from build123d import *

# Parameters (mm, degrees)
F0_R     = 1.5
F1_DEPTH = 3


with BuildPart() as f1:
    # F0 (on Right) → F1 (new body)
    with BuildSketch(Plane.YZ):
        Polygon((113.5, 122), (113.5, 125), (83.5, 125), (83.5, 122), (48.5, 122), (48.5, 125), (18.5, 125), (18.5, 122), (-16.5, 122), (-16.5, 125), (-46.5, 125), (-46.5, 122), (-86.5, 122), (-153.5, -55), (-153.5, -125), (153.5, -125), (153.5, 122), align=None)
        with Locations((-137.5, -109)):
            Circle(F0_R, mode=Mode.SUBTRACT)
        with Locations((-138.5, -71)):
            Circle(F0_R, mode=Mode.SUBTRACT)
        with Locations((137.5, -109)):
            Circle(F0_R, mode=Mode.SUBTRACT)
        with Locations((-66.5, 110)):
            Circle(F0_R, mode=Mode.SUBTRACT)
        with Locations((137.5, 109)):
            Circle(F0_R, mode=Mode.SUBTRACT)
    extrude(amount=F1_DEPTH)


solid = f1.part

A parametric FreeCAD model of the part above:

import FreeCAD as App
import Part
import Sketcher

doc = App.newDocument("Part")
body = doc.addObject("PartDesign::Body", "Body")

# Sketch on YZ plane
sketch1 = body.newObject("Sketcher::SketchObject", "Sketch")
sketch1.AttachmentSupport = (doc.getObject("YZ_Plane"), [""])
sketch1.MapMode = "FlatFace"
sketch1.addGeometry(Part.LineSegment(App.Vector(113.5, 122, 0), App.Vector(113.5, 125, 0)), False)
sketch1.addGeometry(Part.LineSegment(App.Vector(113.5, 125, 0), App.Vector(83.5, 125, 0)), False)
sketch1.addGeometry(Part.LineSegment(App.Vector(83.5, 125, 0), App.Vector(83.5, 122, 0)), False)
sketch1.addGeometry(Part.LineSegment(App.Vector(83.5, 122, 0), App.Vector(48.5, 122, 0)), False)
sketch1.addGeometry(Part.LineSegment(App.Vector(48.5, 122, 0), App.Vector(48.5, 125, 0)), False)
sketch1.addGeometry(Part.LineSegment(App.Vector(48.5, 125, 0), App.Vector(18.5, 125, 0)), False)
sketch1.addGeometry(Part.LineSegment(App.Vector(18.5, 125, 0), App.Vector(18.5, 122, 0)), False)
sketch1.addGeometry(Part.LineSegment(App.Vector(18.5, 122, 0), App.Vector(-16.5, 122, 0)), False)
sketch1.addGeometry(Part.LineSegment(App.Vector(-16.5, 122, 0), App.Vector(-16.5, 125, 0)), False)
sketch1.addGeometry(Part.LineSegment(App.Vector(-16.5, 125, 0), App.Vector(-46.5, 125, 0)), False)
sketch1.addGeometry(Part.LineSegment(App.Vector(-46.5, 125, 0), App.Vector(-46.5, 122, 0)), False)
sketch1.addGeometry(Part.LineSegment(App.Vector(-46.5, 122, 0), App.Vector(-86.5, 122, 0)), False)
sketch1.addGeometry(Part.LineSegment(App.Vector(-86.5, 122, 0), App.Vector(-153.5, -55, 0)), False)
sketch1.addGeometry(Part.LineSegment(App.Vector(-153.5, -55, 0), App.Vector(-153.5, -125, 0)), False)
sketch1.addGeometry(Part.LineSegment(App.Vector(-153.5, -125, 0), App.Vector(153.5, -125, 0)), False)
sketch1.addGeometry(Part.LineSegment(App.Vector(153.5, -125, 0), App.Vector(153.5, 122, 0)), False)
sketch1.addGeometry(Part.LineSegment(App.Vector(153.5, 122, 0), App.Vector(113.5, 122, 0)), False)
sketch1.addGeometry(Part.Circle(App.Vector(-137.5, -109, 0), App.Vector(0, 0, 1), 1.5), False)
sketch1.addGeometry(Part.Circle(App.Vector(-138.5, -71, 0), App.Vector(0, 0, 1), 1.5), False)
sketch1.addGeometry(Part.Circle(App.Vector(137.5, -109, 0), App.Vector(0, 0, 1), 1.5), False)
sketch1.addGeometry(Part.Circle(App.Vector(-66.5, 110, 0), App.Vector(0, 0, 1), 1.5), False)
sketch1.addGeometry(Part.Circle(App.Vector(137.5, 109, 0), App.Vector(0, 0, 1), 1.5), False)
sketch1.addConstraint(Sketcher.Constraint("Coincident", 0, 2, 1, 1))
sketch1.addConstraint(Sketcher.Constraint("Coincident", 1, 2, 2, 1))
sketch1.addConstraint(Sketcher.Constraint("Coincident", 2, 2, 3, 1))
sketch1.addConstraint(Sketcher.Constraint("Coincident", 3, 2, 4, 1))
sketch1.addConstraint(Sketcher.Constraint("Coincident", 4, 2, 5, 1))
sketch1.addConstraint(Sketcher.Constraint("Coincident", 5, 2, 6, 1))
sketch1.addConstraint(Sketcher.Constraint("Coincident", 6, 2, 7, 1))
sketch1.addConstraint(Sketcher.Constraint("Coincident", 7, 2, 8, 1))
sketch1.addConstraint(Sketcher.Constraint("Coincident", 8, 2, 9, 1))
sketch1.addConstraint(Sketcher.Constraint("Coincident", 9, 2, 10, 1))
sketch1.addConstraint(Sketcher.Constraint("Coincident", 10, 2, 11, 1))
sketch1.addConstraint(Sketcher.Constraint("Coincident", 11, 2, 12, 1))
sketch1.addConstraint(Sketcher.Constraint("Coincident", 12, 2, 13, 1))
sketch1.addConstraint(Sketcher.Constraint("Coincident", 13, 2, 14, 1))
sketch1.addConstraint(Sketcher.Constraint("Coincident", 14, 2, 15, 1))
sketch1.addConstraint(Sketcher.Constraint("Coincident", 15, 2, 16, 1))
sketch1.addConstraint(Sketcher.Constraint("Coincident", 16, 2, 0, 1))
sketch1.addConstraint(Sketcher.Constraint("Vertical", 0))
sketch1.addConstraint(Sketcher.Constraint("Horizontal", 1))
sketch1.addConstraint(Sketcher.Constraint("Vertical", 2))
sketch1.addConstraint(Sketcher.Constraint("Horizontal", 3))
sketch1.addConstraint(Sketcher.Constraint("Vertical", 4))
sketch1.addConstraint(Sketcher.Constraint("Horizontal", 5))
sketch1.addConstraint(Sketcher.Constraint("Vertical", 6))
sketch1.addConstraint(Sketcher.Constraint("Horizontal", 7))
sketch1.addConstraint(Sketcher.Constraint("Vertical", 8))
sketch1.addConstraint(Sketcher.Constraint("Horizontal", 9))
sketch1.addConstraint(Sketcher.Constraint("Vertical", 10))
sketch1.addConstraint(Sketcher.Constraint("Horizontal", 11))
sketch1.addConstraint(Sketcher.Constraint("Vertical", 13))
sketch1.addConstraint(Sketcher.Constraint("Horizontal", 14))
sketch1.addConstraint(Sketcher.Constraint("Vertical", 15))
sketch1.addConstraint(Sketcher.Constraint("Horizontal", 16))
sketch1.addConstraint(Sketcher.Constraint("Equal", 17, 18))
sketch1.addConstraint(Sketcher.Constraint("Equal", 18, 19))
sketch1.addConstraint(Sketcher.Constraint("Equal", 19, 20))
sketch1.addConstraint(Sketcher.Constraint("Equal", 20, 21))
sketch1.addConstraint(Sketcher.Constraint("Symmetric", 17, 3, 21, 3, -1, 1))
sketch1.addConstraint(Sketcher.Constraint("Symmetric", 17, 3, 19, 3, -2))
sketch1.addConstraint(Sketcher.Constraint("Horizontal", 1, 2, 4, 2))
sketch1.addConstraint(Sketcher.Constraint("Horizontal", 3, 2, 6, 2))
sketch1.addConstraint(Sketcher.Constraint("Horizontal", 5, 2, 8, 2))
sketch1.addConstraint(Sketcher.Constraint("Horizontal", 7, 2, 10, 2))
sketch1.addConstraint(Sketcher.Constraint("Horizontal", 11, 2, 15, 2))
sketch1.addConstraint(Sketcher.Constraint("Equal", 1, 5))
sketch1.addConstraint(Sketcher.Constraint("Equal", 3, 7))
sketch1.addConstraint(Sketcher.Constraint("Equal", 5, 9))
sketch1.addConstraint(Sketcher.Constraint("Equal", 11, 16))
sketch1.addConstraint(Sketcher.Constraint("Diameter", 17, 3.0))
sketch1.addConstraint(Sketcher.Constraint("DistanceX", 1, 2, 1, 1, 30.0))
sketch1.addConstraint(Sketcher.Constraint("DistanceX", 3, 2, 3, 1, 35.0))
sketch1.addConstraint(Sketcher.Constraint("DistanceX", 11, 2, 11, 1, 40.0))
sketch1.addConstraint(Sketcher.Constraint("DistanceX", 14, 1, 14, 2, 307.0))
sketch1.addConstraint(Sketcher.Constraint("DistanceY", 0, 1, 0, 2, 3.0))
sketch1.addConstraint(Sketcher.Constraint("DistanceY", 13, 2, 13, 1, 70.0))
sketch1.addConstraint(Sketcher.Constraint("DistanceY", 15, 1, 15, 2, 247.0))
sketch1.addConstraint(Sketcher.Constraint("DistanceY", 17, 3, -1, 1, 109.0))
sketch1.addConstraint(Sketcher.Constraint("DistanceY", 18, 3, -1, 1, 71.0))
sketch1.addConstraint(Sketcher.Constraint("DistanceY", -1, 1, 20, 3, 110.0))
sketch1.addConstraint(Sketcher.Constraint("DistanceY", -1, 1, 0, 2, 125.0))
sketch1.addConstraint(Sketcher.Constraint("DistanceX", 18, 3, 17, 3, 1.0))
sketch1.addConstraint(Sketcher.Constraint("DistanceX", 17, 3, 19, 3, 275.0))
sketch1.addConstraint(Sketcher.Constraint("DistanceX", 18, 3, 20, 3, 72.0))
sketch1.addConstraint(Sketcher.Constraint("DistanceX", 0, 2, 21, 3, 24.0))
pad1 = body.newObject("PartDesign::Pad", "Pad")
pad1.Profile = sketch1
pad1.Length = 3

doc.recompute()
